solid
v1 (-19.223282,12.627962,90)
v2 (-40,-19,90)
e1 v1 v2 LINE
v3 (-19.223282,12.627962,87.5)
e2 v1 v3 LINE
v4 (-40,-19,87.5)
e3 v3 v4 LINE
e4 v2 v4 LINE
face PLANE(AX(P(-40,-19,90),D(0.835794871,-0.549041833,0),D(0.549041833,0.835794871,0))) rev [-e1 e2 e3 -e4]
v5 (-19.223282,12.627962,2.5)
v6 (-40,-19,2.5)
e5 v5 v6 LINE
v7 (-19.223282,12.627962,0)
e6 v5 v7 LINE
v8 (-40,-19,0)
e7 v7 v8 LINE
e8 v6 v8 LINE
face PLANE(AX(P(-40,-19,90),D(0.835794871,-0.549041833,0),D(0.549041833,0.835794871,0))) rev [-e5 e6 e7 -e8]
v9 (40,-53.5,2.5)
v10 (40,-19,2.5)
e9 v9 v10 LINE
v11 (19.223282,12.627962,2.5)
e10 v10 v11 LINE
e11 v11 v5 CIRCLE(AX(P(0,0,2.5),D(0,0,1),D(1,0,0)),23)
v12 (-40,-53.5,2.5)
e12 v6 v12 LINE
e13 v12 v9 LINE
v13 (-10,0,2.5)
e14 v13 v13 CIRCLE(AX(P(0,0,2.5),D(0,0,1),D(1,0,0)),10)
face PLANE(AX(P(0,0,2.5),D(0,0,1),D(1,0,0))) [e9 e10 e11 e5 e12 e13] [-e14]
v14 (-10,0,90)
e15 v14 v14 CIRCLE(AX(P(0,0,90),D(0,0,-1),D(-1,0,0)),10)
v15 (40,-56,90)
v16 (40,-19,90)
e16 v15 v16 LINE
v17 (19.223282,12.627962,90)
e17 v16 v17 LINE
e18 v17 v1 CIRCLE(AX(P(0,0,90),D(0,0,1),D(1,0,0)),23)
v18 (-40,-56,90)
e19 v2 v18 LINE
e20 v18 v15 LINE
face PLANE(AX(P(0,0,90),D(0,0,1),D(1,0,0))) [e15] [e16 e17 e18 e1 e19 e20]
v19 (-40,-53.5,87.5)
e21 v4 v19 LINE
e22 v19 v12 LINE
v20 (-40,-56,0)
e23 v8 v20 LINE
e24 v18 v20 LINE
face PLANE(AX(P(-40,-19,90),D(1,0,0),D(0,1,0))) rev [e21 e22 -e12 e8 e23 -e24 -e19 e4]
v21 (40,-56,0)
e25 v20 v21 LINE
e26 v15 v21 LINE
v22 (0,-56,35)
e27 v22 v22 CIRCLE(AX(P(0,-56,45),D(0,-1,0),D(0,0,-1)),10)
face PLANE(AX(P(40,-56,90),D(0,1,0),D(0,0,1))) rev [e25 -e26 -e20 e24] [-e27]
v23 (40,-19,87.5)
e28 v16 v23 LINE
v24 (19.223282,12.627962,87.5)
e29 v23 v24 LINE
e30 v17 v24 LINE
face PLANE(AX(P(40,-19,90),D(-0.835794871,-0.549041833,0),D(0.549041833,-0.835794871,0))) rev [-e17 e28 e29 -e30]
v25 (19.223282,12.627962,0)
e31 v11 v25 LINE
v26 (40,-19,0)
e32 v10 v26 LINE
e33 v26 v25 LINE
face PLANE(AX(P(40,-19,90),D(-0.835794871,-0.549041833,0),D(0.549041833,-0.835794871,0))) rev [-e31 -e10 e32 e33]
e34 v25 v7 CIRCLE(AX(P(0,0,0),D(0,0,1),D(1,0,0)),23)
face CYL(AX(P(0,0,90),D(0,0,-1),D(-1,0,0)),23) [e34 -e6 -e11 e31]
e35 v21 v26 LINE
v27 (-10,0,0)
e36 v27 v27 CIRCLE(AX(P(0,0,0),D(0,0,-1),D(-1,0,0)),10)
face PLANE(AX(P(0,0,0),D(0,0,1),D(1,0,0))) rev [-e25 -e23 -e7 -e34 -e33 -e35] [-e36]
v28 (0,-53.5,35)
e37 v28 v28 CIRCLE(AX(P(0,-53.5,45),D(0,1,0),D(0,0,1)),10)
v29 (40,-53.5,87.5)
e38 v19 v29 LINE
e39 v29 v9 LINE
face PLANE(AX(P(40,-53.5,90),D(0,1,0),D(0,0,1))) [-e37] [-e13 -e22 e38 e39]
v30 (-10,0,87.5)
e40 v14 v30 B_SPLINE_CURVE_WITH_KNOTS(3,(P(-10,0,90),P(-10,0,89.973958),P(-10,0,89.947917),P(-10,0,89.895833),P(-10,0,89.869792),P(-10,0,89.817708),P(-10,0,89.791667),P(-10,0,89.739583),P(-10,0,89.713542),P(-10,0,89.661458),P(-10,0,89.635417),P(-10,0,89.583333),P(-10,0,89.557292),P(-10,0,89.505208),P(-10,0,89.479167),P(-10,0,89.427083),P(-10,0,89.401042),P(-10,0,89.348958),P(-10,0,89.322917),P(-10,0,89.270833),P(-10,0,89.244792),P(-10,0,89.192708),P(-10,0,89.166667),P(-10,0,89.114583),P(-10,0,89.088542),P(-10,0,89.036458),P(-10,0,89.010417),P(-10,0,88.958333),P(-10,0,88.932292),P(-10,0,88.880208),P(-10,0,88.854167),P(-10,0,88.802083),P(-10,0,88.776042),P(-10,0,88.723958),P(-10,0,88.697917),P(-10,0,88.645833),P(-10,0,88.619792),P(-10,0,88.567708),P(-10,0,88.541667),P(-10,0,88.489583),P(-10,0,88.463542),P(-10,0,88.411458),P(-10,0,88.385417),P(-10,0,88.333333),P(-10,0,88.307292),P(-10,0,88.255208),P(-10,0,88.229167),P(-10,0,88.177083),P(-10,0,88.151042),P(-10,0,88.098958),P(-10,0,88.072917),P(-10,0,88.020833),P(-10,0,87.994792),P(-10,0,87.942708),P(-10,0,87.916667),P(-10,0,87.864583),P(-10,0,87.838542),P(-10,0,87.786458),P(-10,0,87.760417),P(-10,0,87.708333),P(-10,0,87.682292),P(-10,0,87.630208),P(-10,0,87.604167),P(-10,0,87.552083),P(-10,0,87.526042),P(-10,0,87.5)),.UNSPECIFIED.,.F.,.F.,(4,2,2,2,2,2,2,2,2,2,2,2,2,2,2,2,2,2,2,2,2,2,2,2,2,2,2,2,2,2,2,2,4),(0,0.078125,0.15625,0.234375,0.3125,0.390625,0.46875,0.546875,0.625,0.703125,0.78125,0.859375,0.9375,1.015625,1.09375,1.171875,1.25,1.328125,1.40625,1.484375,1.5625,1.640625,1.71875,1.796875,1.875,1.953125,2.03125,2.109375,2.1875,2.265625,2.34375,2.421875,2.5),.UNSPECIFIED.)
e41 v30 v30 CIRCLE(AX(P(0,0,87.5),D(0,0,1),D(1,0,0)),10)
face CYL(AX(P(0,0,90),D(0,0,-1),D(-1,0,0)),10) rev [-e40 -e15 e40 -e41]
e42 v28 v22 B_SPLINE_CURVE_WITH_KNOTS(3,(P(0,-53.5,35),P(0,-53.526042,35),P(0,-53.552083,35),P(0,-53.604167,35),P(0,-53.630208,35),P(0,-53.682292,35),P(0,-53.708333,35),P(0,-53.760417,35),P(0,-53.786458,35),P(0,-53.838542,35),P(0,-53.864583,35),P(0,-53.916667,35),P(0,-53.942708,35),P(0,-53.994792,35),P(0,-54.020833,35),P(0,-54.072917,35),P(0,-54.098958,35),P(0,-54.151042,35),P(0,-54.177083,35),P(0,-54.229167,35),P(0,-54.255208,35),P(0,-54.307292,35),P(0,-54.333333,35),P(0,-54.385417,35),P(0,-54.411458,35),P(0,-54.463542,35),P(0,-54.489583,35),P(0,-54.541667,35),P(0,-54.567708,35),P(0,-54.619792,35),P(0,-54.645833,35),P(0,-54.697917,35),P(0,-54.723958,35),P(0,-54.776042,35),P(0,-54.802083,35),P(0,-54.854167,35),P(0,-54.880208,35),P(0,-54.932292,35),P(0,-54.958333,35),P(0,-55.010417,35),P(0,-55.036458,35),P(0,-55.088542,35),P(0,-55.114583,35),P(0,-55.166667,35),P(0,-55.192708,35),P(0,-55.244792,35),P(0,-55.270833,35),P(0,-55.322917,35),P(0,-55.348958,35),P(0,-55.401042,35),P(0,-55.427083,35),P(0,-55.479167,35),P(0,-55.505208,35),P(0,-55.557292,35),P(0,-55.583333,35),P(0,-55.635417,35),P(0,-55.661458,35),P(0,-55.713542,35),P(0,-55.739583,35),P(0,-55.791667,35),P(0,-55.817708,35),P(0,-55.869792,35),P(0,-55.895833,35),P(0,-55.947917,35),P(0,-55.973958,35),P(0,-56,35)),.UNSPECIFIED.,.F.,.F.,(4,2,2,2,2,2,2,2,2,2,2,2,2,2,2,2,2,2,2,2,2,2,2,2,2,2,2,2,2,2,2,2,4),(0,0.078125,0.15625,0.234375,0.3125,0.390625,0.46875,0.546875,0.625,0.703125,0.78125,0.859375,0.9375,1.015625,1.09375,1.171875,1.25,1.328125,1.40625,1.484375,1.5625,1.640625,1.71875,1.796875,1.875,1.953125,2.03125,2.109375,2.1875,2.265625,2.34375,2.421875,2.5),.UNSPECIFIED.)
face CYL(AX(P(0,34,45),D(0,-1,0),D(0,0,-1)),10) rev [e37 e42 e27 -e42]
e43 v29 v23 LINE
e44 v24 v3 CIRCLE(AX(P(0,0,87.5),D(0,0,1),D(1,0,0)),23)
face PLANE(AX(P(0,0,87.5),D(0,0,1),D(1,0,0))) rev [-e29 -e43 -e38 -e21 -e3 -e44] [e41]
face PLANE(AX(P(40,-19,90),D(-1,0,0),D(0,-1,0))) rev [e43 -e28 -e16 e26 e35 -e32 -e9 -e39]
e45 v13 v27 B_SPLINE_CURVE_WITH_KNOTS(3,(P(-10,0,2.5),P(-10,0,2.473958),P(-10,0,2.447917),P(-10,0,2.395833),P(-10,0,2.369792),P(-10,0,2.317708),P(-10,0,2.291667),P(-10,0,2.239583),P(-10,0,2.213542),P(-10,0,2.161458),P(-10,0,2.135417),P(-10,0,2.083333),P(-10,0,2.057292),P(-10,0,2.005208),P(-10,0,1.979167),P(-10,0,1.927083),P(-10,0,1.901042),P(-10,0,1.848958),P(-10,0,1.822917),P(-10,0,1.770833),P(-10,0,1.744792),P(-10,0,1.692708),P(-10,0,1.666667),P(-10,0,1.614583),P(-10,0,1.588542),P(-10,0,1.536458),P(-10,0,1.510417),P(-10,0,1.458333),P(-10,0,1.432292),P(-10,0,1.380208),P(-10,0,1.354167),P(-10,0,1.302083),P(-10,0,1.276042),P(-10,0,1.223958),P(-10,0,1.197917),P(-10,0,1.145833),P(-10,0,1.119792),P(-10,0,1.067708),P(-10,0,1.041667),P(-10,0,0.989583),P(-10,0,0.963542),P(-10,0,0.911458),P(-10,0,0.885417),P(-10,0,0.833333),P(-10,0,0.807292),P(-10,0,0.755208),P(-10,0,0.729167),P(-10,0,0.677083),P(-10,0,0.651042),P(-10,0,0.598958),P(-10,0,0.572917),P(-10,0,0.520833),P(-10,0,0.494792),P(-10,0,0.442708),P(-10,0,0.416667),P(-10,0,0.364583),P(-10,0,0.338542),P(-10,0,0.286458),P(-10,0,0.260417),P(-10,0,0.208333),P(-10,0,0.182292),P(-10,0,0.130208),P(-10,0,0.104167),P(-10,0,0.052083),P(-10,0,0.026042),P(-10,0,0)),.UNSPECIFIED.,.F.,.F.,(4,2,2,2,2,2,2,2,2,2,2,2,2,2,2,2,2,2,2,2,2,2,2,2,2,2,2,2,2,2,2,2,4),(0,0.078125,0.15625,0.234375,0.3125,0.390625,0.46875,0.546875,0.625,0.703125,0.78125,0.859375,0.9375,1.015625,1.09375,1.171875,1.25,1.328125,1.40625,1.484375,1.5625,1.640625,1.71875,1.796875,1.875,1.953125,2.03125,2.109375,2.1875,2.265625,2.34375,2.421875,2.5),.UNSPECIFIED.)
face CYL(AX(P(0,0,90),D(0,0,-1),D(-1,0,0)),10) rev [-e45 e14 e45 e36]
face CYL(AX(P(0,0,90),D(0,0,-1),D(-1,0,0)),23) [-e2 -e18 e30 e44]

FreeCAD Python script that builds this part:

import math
import FreeCAD as App
import Part
import Sketcher
from FreeCAD import Vector
Q = App.Units.Quantity


def faces_at(feature, points):
    """Names of the faces that lie closest to the given points."""
    faces = feature.Shape.Faces
    near = lambda p: min(range(len(faces)), key=lambda i: faces[i].distToShape(Part.Vertex(*p))[0])
    return sorted({f"Face{near(p) + 1}" for p in points})

doc = App.newDocument("Part")
body = doc.addObject("PartDesign::Body", "Body")

sketch1 = body.newObject("Sketcher::SketchObject", "Sketch")
sketch1.AttachmentSupport = (doc.getObject("XY_Plane"), [""])
sketch1.MapMode = "FlatFace"
sketch1.addGeometry(Part.LineSegment(Vector(-40, -56, 0), Vector(40, -56, 0)), False)
sketch1.addGeometry(Part.LineSegment(Vector(40, -56, 0), Vector(40, -19, 0)), False)
sketch1.addGeometry(Part.LineSegment(Vector(40, -19, 0), Vector(19, 13, 0)), False)
sketch1.addGeometry(Part.ArcOfCircle(Part.Circle(Vector(0, 0, 0), Vector(0, 0, 1), 23), math.radians(33), math.radians(147)), False)
sketch1.addGeometry(Part.LineSegment(Vector(-19, 13, 0), Vector(-40, -19, 0)), False)
sketch1.addGeometry(Part.LineSegment(Vector(-40, -19, 0), Vector(-40, -56, 0)), False)
sketch1.addConstraint(Sketcher.Constraint("Coincident", 0, 2, 1, 1))
sketch1.addConstraint(Sketcher.Constraint("Coincident", 1, 2, 2, 1))
sketch1.addConstraint(Sketcher.Constraint("Tangent", 2, 2, 3, 1))
sketch1.addConstraint(Sketcher.Constraint("Tangent", 3, 2, 4, 1))
sketch1.addConstraint(Sketcher.Constraint("Coincident", 4, 2, 5, 1))
sketch1.addConstraint(Sketcher.Constraint("Coincident", 5, 2, 0, 1))
sketch1.addConstraint(Sketcher.Constraint("Horizontal", 0))
sketch1.addConstraint(Sketcher.Constraint("Vertical", 1))
sketch1.addConstraint(Sketcher.Constraint("Vertical", 5))
sketch1.addConstraint(Sketcher.Constraint("Coincident", 3, 3, -1, 1))
sketch1.addConstraint(Sketcher.Constraint("Symmetric", 1, 2, 4, 2, -2))
sketch1.addConstraint(Sketcher.Constraint("Radius", 3, Q("23 mm")))
sketch1.addConstraint(Sketcher.Constraint("DistanceX", 0, 1, 0, 2, Q("80 mm")))
sketch1.addConstraint(Sketcher.Constraint("DistanceY", 1, 1, 1, 2, Q("37 mm")))
sketch1.addConstraint(Sketcher.Constraint("DistanceY", 0, 2, -1, 1, Q("56 mm")))
pad1 = body.newObject("PartDesign::Pad", "Pad")
pad1.Profile = sketch1
pad1.Length = 90
doc.recompute()

thickness = body.newObject("PartDesign::Thickness", "Thickness")
thickness.Base = (pad1, faces_at(pad1, [
    (40, -37.5, 45),
    (-40, -37.5, 45),
    (-29.612, -3.186, 45),
    (0, 23, 45),
    (29.612, -3.186, 45),
]))
thickness.Value = 2.5
thickness.Reversed = True
thickness.Join = "Intersection"

sketch2 = body.newObject("Sketcher::SketchObject", "Sketch001")
sketch2.AttachmentSupport = (doc.getObject("XZ_Plane"), [""])
sketch2.MapMode = "FlatFace"
sketch2.AttachmentOffset = App.Placement(Vector(0, 0, 56), App.Rotation())
sketch2.addGeometry(Part.Circle(Vector(0, 45, 0), Vector(0, 0, 1), 10), False)
sketch2.addConstraint(Sketcher.Constraint("PointOnObject", 0, 3, -2))
sketch2.addConstraint(Sketcher.Constraint("Diameter", 0, Q("20 mm")))
sketch2.addConstraint(Sketcher.Constraint("DistanceY", -1, 1, 0, 3, Q("45 mm")))
pocket1 = body.newObject("PartDesign::Pocket", "Pocket")
pocket1.Profile = sketch2
pocket1.Length = 90

sketch3 = body.newObject("Sketcher::SketchObject", "Sketch002")
sketch3.AttachmentSupport = (doc.getObject("XY_Plane"), [""])
sketch3.MapMode = "FlatFace"
sketch3.addGeometry(Part.Circle(Vector(0, 0, 0), Vector(0, 0, 1), 10), False)
sketch3.addConstraint(Sketcher.Constraint("Coincident", 0, 3, -1, 1))
sketch3.addConstraint(Sketcher.Constraint("Diameter", 0, Q("20 mm")))
pocket2 = body.newObject("PartDesign::Pocket", "Pocket001")
pocket2.Profile = sketch3
pocket2.Type = "ThroughAll"
pocket2.Reversed = True

doc.recompute()
